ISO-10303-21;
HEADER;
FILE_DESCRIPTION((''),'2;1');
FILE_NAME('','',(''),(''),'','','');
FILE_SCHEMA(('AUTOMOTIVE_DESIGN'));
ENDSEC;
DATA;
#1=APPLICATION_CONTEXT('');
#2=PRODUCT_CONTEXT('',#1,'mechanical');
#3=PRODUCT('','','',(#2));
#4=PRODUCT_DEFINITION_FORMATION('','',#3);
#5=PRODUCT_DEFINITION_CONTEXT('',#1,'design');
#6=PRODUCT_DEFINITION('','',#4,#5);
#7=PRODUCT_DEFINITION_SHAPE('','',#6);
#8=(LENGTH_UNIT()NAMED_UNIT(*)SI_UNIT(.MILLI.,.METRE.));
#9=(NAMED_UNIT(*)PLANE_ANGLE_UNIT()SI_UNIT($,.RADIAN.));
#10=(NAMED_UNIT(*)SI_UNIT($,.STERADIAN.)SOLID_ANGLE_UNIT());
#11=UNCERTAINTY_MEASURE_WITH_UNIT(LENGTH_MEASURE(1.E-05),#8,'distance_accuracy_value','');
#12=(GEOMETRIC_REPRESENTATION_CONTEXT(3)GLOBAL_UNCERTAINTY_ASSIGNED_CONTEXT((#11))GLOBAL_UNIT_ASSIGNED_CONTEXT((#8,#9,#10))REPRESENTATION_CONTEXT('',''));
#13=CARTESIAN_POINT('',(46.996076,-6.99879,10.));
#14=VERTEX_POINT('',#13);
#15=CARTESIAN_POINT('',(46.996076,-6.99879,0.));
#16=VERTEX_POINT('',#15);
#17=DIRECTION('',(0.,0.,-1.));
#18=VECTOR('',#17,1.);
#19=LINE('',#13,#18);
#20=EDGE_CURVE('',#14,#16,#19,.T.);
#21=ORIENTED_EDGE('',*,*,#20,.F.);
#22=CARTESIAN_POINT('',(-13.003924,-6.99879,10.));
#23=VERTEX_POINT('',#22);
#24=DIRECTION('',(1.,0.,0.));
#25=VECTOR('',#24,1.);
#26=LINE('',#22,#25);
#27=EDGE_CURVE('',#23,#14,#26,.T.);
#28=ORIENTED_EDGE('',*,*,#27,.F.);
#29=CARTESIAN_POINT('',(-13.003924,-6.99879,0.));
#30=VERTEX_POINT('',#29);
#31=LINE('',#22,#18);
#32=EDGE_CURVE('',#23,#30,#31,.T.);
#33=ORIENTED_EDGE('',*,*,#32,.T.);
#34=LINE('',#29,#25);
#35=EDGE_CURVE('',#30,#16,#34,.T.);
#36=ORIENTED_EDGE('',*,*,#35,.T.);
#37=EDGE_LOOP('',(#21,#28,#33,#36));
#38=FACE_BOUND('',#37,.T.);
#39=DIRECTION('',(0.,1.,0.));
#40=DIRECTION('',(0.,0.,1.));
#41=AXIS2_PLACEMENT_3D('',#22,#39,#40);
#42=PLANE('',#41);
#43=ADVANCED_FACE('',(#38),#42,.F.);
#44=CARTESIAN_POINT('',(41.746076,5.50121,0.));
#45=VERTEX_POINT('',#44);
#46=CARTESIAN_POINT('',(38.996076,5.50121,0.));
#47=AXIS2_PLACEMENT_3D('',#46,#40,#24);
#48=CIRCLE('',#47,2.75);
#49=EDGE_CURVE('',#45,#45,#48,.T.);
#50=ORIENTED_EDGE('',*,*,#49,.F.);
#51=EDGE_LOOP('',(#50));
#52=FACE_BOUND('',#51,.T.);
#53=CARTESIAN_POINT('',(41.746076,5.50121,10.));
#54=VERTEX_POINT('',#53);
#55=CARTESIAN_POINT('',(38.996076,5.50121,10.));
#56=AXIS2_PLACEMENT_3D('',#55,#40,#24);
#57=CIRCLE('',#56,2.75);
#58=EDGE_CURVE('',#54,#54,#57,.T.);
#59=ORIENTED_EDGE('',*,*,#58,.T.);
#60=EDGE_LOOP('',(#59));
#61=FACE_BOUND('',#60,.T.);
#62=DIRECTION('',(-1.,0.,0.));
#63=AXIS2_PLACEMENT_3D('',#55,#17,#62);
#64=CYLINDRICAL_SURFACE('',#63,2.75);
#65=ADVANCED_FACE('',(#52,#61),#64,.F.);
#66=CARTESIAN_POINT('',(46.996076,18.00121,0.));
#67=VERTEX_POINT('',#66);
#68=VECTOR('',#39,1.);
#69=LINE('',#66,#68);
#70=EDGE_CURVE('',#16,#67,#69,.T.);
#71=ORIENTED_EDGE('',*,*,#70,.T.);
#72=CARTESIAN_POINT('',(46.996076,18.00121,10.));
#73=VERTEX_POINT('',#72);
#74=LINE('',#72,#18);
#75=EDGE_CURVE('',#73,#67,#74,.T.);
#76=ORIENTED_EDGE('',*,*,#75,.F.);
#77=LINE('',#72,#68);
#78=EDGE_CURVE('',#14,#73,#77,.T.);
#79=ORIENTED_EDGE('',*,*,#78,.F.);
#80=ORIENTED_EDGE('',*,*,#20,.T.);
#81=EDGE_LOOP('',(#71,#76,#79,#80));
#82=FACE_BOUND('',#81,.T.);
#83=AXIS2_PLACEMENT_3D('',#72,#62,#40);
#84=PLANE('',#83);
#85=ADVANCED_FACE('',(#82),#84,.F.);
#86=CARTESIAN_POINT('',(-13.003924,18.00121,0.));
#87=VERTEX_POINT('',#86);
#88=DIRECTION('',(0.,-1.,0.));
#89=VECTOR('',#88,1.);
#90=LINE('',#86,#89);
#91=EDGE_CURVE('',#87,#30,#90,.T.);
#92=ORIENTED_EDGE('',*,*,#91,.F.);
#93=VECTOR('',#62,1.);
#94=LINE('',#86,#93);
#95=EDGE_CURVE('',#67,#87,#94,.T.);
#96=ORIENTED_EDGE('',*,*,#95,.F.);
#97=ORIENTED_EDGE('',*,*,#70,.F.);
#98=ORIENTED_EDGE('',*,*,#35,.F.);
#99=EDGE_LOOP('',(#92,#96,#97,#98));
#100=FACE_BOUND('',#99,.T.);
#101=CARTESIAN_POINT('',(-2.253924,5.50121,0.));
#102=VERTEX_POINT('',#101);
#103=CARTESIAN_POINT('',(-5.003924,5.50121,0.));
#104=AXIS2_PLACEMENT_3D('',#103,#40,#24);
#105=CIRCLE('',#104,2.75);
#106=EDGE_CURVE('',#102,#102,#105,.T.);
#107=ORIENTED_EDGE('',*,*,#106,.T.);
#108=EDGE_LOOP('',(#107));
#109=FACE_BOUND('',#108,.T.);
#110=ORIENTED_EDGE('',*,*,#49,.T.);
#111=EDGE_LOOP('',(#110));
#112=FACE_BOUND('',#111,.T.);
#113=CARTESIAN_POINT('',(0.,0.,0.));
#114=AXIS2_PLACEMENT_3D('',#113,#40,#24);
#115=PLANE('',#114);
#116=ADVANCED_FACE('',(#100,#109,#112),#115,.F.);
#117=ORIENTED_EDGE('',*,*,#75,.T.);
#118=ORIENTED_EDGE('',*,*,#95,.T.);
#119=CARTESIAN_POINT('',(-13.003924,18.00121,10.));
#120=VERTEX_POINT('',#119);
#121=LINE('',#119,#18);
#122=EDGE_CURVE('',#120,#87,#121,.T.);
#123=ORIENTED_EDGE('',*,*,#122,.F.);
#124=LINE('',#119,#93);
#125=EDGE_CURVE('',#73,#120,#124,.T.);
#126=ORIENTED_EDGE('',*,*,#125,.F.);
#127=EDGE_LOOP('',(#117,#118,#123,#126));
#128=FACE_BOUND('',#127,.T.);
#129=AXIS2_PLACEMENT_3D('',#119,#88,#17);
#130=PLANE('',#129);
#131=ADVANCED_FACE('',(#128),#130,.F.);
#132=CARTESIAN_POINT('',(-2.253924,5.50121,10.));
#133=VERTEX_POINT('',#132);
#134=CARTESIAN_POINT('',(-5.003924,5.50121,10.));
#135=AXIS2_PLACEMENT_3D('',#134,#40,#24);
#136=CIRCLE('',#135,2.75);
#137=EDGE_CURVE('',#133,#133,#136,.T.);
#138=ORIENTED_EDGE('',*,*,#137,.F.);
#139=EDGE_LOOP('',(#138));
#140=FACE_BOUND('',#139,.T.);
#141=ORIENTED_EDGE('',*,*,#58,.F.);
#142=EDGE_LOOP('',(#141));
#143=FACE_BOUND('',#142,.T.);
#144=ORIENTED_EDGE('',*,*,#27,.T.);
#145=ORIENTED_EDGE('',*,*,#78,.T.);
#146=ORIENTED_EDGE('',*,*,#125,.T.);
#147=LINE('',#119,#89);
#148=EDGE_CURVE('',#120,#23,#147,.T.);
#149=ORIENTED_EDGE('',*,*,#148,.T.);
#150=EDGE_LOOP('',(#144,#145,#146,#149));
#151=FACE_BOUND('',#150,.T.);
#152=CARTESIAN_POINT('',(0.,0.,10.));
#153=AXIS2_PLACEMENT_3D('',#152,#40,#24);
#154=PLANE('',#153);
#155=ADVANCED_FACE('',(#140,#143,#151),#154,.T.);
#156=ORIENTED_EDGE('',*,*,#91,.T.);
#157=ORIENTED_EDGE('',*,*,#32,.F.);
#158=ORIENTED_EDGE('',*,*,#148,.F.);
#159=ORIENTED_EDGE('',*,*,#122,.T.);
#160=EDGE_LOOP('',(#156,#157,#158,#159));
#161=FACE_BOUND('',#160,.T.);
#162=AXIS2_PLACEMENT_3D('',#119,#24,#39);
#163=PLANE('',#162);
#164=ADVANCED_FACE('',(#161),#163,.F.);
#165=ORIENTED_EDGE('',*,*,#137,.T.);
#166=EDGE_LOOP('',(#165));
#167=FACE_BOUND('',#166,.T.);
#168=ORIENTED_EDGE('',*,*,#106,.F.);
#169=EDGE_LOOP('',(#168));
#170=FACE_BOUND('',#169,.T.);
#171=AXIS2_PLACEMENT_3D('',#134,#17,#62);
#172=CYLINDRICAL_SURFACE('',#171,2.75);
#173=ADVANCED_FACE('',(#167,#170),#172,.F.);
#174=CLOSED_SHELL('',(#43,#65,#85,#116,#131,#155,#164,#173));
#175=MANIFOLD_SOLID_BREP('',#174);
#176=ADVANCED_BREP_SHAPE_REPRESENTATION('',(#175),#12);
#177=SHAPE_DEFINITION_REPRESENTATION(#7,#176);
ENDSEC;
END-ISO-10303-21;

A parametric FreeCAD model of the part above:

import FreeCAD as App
import Part
import Sketcher

V = App.Vector

doc = App.newDocument("Part")
params = doc.addObject("Spreadsheet::Sheet", "Params")
for row, (alias, value) in enumerate([
    ("sketch1_diameter", "5.5 mm"),
    ("sketch1_width", "60 mm"),
    ("sketch1_height", "25 mm"),
    ("pad1_length", "10 mm"),
], start=1):
    params.set(f"A{row}", alias)
    params.set(f"B{row}", "=" + value)
    params.setAlias(f"B{row}", alias)

body = doc.addObject("PartDesign::Body", "Body")

# Sketch on XY plane
sketch1 = body.newObject("Sketcher::SketchObject", "Sketch")
sketch1.AttachmentSupport = (doc.getObject("XY_Plane"), [""])
sketch1.MapMode = "FlatFace"
sketch1.addGeometry(Part.LineSegment(V(-13, 18, 0), V(-13, -7, 0)), False)
sketch1.addGeometry(Part.LineSegment(V(-13, -7, 0), V(47, -7, 0)), False)
sketch1.addGeometry(Part.LineSegment(V(47, -7, 0), V(47, 18, 0)), False)
sketch1.addGeometry(Part.LineSegment(V(47, 18, 0), V(-13, 18, 0)), False)
sketch1.addGeometry(Part.Circle(V(-5, 5.5, 0), V(0, 0, 1), 2.8), False)
sketch1.addGeometry(Part.Circle(V(39, 5.5, 0), V(0, 0, 1), 2.8), False)
sketch1.addConstraint(Sketcher.Constraint("Coincident", 0, 2, 1, 1))
sketch1.addConstraint(Sketcher.Constraint("Coincident", 1, 2, 2, 1))
sketch1.addConstraint(Sketcher.Constraint("Coincident", 2, 2, 3, 1))
sketch1.addConstraint(Sketcher.Constraint("Coincident", 3, 2, 0, 1))
sketch1.addConstraint(Sketcher.Constraint("Vertical", 0))
sketch1.addConstraint(Sketcher.Constraint("Horizontal", 1))
sketch1.addConstraint(Sketcher.Constraint("Vertical", 2))
sketch1.addConstraint(Sketcher.Constraint("Horizontal", 3))
sketch1.addConstraint(Sketcher.Constraint("Equal", 4, 5))
sketch1.addConstraint(Sketcher.Constraint("Horizontal", 4, 3, 5, 3))
sketch1.addConstraint(Sketcher.Constraint("Diameter", 4, 5.5))
sketch1.addConstraint(Sketcher.Constraint("DistanceX", 1, 1, 1, 2, 60.0))
sketch1.addConstraint(Sketcher.Constraint("DistanceY", 0, 2, 0, 1, 25.0))
sketch1.addConstraint(Sketcher.Constraint("DistanceX", 4, 3, 5, 3, 44.0))
sketch1.addConstraint(Sketcher.Constraint("DistanceX", 0, 2, 4, 3, 8.0))
sketch1.addConstraint(Sketcher.Constraint("DistanceY", 0, 2, 4, 3, 12.5))
sketch1.addConstraint(Sketcher.Constraint("DistanceY", -1, 1, 4, 3, 5.50121))
sketch1.addConstraint(Sketcher.Constraint("DistanceX", 4, 3, -1, 1, 5.003924))
sketch1.setExpression("Constraints[10]", "Params.sketch1_diameter")
sketch1.setExpression("Constraints[11]", "Params.sketch1_width")
sketch1.setExpression("Constraints[12]", "Params.sketch1_height")
pad1 = body.newObject("PartDesign::Pad", "Pad")
pad1.Profile = sketch1
pad1.setExpression("Length", "Params.pad1_length")

doc.recompute()
